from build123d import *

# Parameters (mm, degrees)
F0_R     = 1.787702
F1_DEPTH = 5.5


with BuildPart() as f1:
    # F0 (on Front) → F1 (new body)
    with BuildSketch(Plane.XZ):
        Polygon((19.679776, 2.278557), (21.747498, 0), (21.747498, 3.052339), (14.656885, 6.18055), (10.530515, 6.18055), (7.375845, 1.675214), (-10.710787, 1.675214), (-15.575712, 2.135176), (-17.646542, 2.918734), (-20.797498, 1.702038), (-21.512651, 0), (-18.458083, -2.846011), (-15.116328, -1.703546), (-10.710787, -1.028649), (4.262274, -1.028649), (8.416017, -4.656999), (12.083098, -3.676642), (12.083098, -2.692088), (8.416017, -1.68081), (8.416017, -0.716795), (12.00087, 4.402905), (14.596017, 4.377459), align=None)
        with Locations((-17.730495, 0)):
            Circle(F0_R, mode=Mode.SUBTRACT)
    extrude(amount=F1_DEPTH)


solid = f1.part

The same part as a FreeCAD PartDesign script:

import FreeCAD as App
import Part
import Sketcher
Q = App.Units.Quantity

doc = App.newDocument("Part")
body = doc.addObject("PartDesign::Body", "Body")

# Sketch on XZ plane
sketch1 = body.newObject("Sketcher::SketchObject", "Sketch")
sketch1.AttachmentSupport = (doc.getObject("XZ_Plane"), [""])
sketch1.MapMode = "FlatFace"
sketch1.addGeometry([
    Part.LineSegment(App.Vector(19.679776, 2.278557, 0), App.Vector(21.747498, 0, 0)),  # 0
    Part.LineSegment(App.Vector(21.747498, 0, 0), App.Vector(21.747498, 3.052339, 0)),  # 1
    Part.LineSegment(App.Vector(21.747498, 3.052339, 0), App.Vector(14.656885, 6.18055, 0)),  # 2
    Part.LineSegment(App.Vector(14.656885, 6.18055, 0), App.Vector(10.530515, 6.18055, 0)),  # 3
    Part.LineSegment(App.Vector(10.530515, 6.18055, 0), App.Vector(7.375845, 1.675214, 0)),  # 4
    Part.LineSegment(App.Vector(7.375845, 1.675214, 0), App.Vector(-10.710787, 1.675214, 0)),  # 5
    Part.LineSegment(App.Vector(-10.710787, 1.675214, 0), App.Vector(-15.575712, 2.135176, 0)),  # 6
    Part.LineSegment(App.Vector(-15.575712, 2.135176, 0), App.Vector(-17.646542, 2.918734, 0)),  # 7
    Part.LineSegment(App.Vector(-17.646542, 2.918734, 0), App.Vector(-20.797498, 1.702038, 0)),  # 8
    Part.LineSegment(App.Vector(-20.797498, 1.702038, 0), App.Vector(-21.512651, 0, 0)),  # 9
    Part.LineSegment(App.Vector(-21.512651, 0, 0), App.Vector(-18.458083, -2.846011, 0)),  # 10
    Part.LineSegment(App.Vector(-18.458083, -2.846011, 0), App.Vector(-15.116328, -1.703546, 0)),  # 11
    Part.LineSegment(App.Vector(-15.116328, -1.703546, 0), App.Vector(-10.710787, -1.028649, 0)),  # 12
    Part.LineSegment(App.Vector(-10.710787, -1.028649, 0), App.Vector(4.262274, -1.028649, 0)),  # 13
    Part.LineSegment(App.Vector(4.262274, -1.028649, 0), App.Vector(8.416017, -4.656999, 0)),  # 14
    Part.LineSegment(App.Vector(8.416017, -4.656999, 0), App.Vector(12.083098, -3.676642, 0)),  # 15
    Part.LineSegment(App.Vector(12.083098, -3.676642, 0), App.Vector(12.083098, -2.692088, 0)),  # 16
    Part.LineSegment(App.Vector(12.083098, -2.692088, 0), App.Vector(8.416017, -1.68081, 0)),  # 17
    Part.LineSegment(App.Vector(8.416017, -1.68081, 0), App.Vector(8.416017, -0.716795, 0)),  # 18
    Part.LineSegment(App.Vector(8.416017, -0.716795, 0), App.Vector(12.00087, 4.402905, 0)),  # 19
    Part.LineSegment(App.Vector(12.00087, 4.402905, 0), App.Vector(14.596017, 4.377459, 0)),  # 20
    Part.LineSegment(App.Vector(14.596017, 4.377459, 0), App.Vector(19.679776, 2.278557, 0)),  # 21
    Part.Circle(App.Vector(-17.730495, 0, 0), App.Vector(0, 0, 1), 1.787702),  # 22
], False)
sketch1.addConstraint([
    Sketcher.Constraint("Coincident", 0, 2, 1, 1),
    Sketcher.Constraint("Coincident", 1, 2, 2, 1),
    Sketcher.Constraint("Coincident", 2, 2, 3, 1),
    Sketcher.Constraint("Coincident", 3, 2, 4, 1),
    Sketcher.Constraint("Coincident", 4, 2, 5, 1),
    Sketcher.Constraint("Coincident", 5, 2, 6, 1),
    Sketcher.Constraint("Coincident", 6, 2, 7, 1),
    Sketcher.Constraint("Coincident", 7, 2, 8, 1),
    Sketcher.Constraint("Coincident", 8, 2, 9, 1),
    Sketcher.Constraint("Coincident", 9, 2, 10, 1),
    Sketcher.Constraint("Coincident", 10, 2, 11, 1),
    Sketcher.Constraint("Coincident", 11, 2, 12, 1),
    Sketcher.Constraint("Coincident", 12, 2, 13, 1),
    Sketcher.Constraint("Coincident", 13, 2, 14, 1),
    Sketcher.Constraint("Coincident", 14, 2, 15, 1),
    Sketcher.Constraint("Coincident", 15, 2, 16, 1),
    Sketcher.Constraint("Coincident", 16, 2, 17, 1),
    Sketcher.Constraint("Coincident", 17, 2, 18, 1),
    Sketcher.Constraint("Coincident", 18, 2, 19, 1),
    Sketcher.Constraint("Coincident", 19, 2, 20, 1),
    Sketcher.Constraint("Coincident", 20, 2, 21, 1),
    Sketcher.Constraint("Coincident", 21, 2, 0, 1),
    Sketcher.Constraint("Vertical", 1),
    Sketcher.Constraint("Horizontal", 3),
    Sketcher.Constraint("Horizontal", 5),
    Sketcher.Constraint("Horizontal", 13),
    Sketcher.Constraint("Vertical", 16),
    Sketcher.Constraint("Vertical", 18),
    Sketcher.Constraint("PointOnObject", 22, 3, -1),
    Sketcher.Constraint("PointOnObject", 0, 2, -1),
    Sketcher.Constraint("PointOnObject", 9, 2, -1),
    Sketcher.Constraint("Parallel", 4, 19),
    Sketcher.Constraint("Vertical", 5, 2, 12, 2),
    Sketcher.Constraint("Vertical", 14, 2, 17, 2),
    Sketcher.Constraint("Equal", 4, 21),
    Sketcher.Constraint("Angle", 4, Q("-124.999998 deg")),
    Sketcher.Constraint("Distance", 4, 5.5),
    Sketcher.Constraint("Distance", 2, 7.75),
    Sketcher.Constraint("Distance", 19, 6.25),
    Sketcher.Constraint("Diameter", 22, 3.575404),
    Sketcher.Constraint("DistanceY", 14, 2, -1, 1, 4.656999),
    Sketcher.Constraint("DistanceX", 3, 2, 3, 1, 4.12637),
    Sketcher.Constraint("DistanceX", 13, 1, 13, 2, 14.973061),
    Sketcher.Constraint("DistanceY", 1, 1, 1, 2, 3.052339),
    Sketcher.Constraint("DistanceX", -1, 1, 0, 2, 21.747498),
    Sketcher.Constraint("DistanceX", 8, 2, -1, 1, 20.797498),
    Sketcher.Constraint("DistanceX", 5, 2, 3, 2, 21.241302),
    Sketcher.Constraint("DistanceY", 13, 2, 3, 2, 7.209199),
    Sketcher.Constraint("DistanceY", 21, 2, 20, 2, 2.098902),
    Sketcher.Constraint("Distance", 6, 4.886621),
    Sketcher.Constraint("Distance", 9, 1.846179),
    Sketcher.Constraint("Distance", 11, 3.53165),
    Sketcher.Constraint("Distance", 20, 2.595272),
    Sketcher.Constraint("DistanceY", 16, 1, 16, 2, 0.984554),
    Sketcher.Constraint("DistanceY", 18, 1, 18, 2, 0.964015),
    Sketcher.Constraint("DistanceY", -1, 1, 2, 2, 6.18055),
    Sketcher.Constraint("DistanceX", 6, 2, -1, 1, 15.575712),
    Sketcher.Constraint("DistanceX", 7, 2, -1, 1, 17.646542),
    Sketcher.Constraint("DistanceX", 9, 2, -1, 1, 21.512651),
    Sketcher.Constraint("DistanceY", 10, 2, -1, 1, 2.846011),
    Sketcher.Constraint("DistanceY", 16, 2, -1, 1, 2.692088),
    Sketcher.Constraint("DistanceY", 17, 2, -1, 1, 1.68081),
    Sketcher.Constraint("DistanceX", -1, 1, 19, 2, 12.00087),
    Sketcher.Constraint("DistanceY", -1, 1, 20, 2, 4.377459),
    Sketcher.Constraint("DistanceX", 22, 3, 2, 2, 32.38738),
    Sketcher.Constraint("DistanceY", 6, 2, 7, 2, 0.783558),
    Sketcher.Constraint("DistanceX", 9, 2, 10, 2, 3.054568),
    Sketcher.Constraint("DistanceY", 11, 2, 6, 2, 3.838722),
    Sketcher.Constraint("DistanceX", 14, 2, 15, 2, 3.667081),
])
pad1 = body.newObject("PartDesign::Pad", "Pad")
pad1.Profile = sketch1
pad1.Length = 5.5

doc.recompute()
